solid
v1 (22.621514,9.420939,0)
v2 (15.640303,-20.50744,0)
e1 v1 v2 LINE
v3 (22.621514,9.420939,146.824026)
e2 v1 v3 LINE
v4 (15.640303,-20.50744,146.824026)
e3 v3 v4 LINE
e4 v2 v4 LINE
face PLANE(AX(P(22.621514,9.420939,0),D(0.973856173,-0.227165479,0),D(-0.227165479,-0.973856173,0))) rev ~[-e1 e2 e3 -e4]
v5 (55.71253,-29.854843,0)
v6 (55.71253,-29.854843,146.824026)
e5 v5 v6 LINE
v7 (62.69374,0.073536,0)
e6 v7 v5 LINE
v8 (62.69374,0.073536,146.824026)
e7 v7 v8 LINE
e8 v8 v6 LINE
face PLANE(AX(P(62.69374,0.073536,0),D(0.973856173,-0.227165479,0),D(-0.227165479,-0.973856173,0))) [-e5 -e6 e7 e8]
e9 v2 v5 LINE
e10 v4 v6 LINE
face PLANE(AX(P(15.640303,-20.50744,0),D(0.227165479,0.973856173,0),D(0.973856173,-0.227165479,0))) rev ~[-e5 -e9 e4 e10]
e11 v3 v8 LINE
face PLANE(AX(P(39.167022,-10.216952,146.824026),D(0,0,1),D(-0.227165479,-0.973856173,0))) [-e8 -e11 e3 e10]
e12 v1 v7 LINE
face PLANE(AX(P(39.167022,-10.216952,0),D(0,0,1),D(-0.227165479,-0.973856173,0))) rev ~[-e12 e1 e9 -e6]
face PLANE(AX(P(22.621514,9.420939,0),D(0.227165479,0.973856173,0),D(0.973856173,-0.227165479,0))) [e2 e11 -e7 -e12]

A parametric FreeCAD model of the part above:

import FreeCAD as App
import Part
import Sketcher

V = App.Vector
Q = App.Units.Quantity

doc = App.newDocument("Part")
params = doc.addObject("Spreadsheet::Sheet", "Params")
for row, (alias, value) in enumerate([
    ("pad1_length", "146.824026 mm"),
], start=1):
    params.set(f"A{row}", alias)
    params.set(f"B{row}", "=" + value)
    params.setAlias(f"B{row}", alias)

body = doc.addObject("PartDesign::Body", "Body")

# Sketch on XY plane
sketch1 = body.newObject("Sketcher::SketchObject", "Sketch")
sketch1.AttachmentSupport = (doc.getObject("XY_Plane"), [""])
sketch1.MapMode = "FlatFace"
sketch1.addGeometry(Part.LineSegment(V(-15, 21, 0), V(-15, -21, 0)), False)
sketch1.addGeometry(Part.LineSegment(V(-15, -21, 0), V(16, -21, 0)), False)
sketch1.addGeometry(Part.LineSegment(V(16, -21, 0), V(16, 21, 0)), False)
sketch1.addGeometry(Part.LineSegment(V(16, 21, 0), V(-15, 21, 0)), False)
sketch1.addConstraint(Sketcher.Constraint("Coincident", 0, 2, 1, 1))
sketch1.addConstraint(Sketcher.Constraint("Coincident", 1, 2, 2, 1))
sketch1.addConstraint(Sketcher.Constraint("Coincident", 2, 2, 3, 1))
sketch1.addConstraint(Sketcher.Constraint("Coincident", 3, 2, 0, 1))
sketch1.addConstraint(Sketcher.Constraint("Vertical", 0))
sketch1.addConstraint(Sketcher.Constraint("Horizontal", 1))
sketch1.addConstraint(Sketcher.Constraint("Vertical", 2))
sketch1.addConstraint(Sketcher.Constraint("Horizontal", 3))
sketch1.addConstraint(Sketcher.Constraint("DistanceX", 1, 1, 1, 2, Q("30.731827 mm")))
sketch1.addConstraint(Sketcher.Constraint("DistanceY", 0, 2, 0, 1, Q("41.147992 mm")))
sketch1.addConstraint(Sketcher.Constraint("DistanceY", 0, 2, -1, 1, Q("20.50744 mm")))
sketch1.addConstraint(Sketcher.Constraint("DistanceX", 0, 2, -1, 1, Q("15.091524 mm")))
pad1 = body.newObject("PartDesign::Pad", "Pad")
pad1.Profile = sketch1
pad1.setExpression("Length", "Params.pad1_length")
body2 = doc.addObject("PartDesign::Body", "Body001")
doc.recompute()

body.Placement = App.Placement(V(39.164538, -9.934616, 0), App.Rotation(V(0, 0, -1), 103.130249))
boolean = body2.newObject("PartDesign::Boolean", "Boolean")
boolean.Type = "Fuse"
boolean.addObjects([body])

doc.recompute()
